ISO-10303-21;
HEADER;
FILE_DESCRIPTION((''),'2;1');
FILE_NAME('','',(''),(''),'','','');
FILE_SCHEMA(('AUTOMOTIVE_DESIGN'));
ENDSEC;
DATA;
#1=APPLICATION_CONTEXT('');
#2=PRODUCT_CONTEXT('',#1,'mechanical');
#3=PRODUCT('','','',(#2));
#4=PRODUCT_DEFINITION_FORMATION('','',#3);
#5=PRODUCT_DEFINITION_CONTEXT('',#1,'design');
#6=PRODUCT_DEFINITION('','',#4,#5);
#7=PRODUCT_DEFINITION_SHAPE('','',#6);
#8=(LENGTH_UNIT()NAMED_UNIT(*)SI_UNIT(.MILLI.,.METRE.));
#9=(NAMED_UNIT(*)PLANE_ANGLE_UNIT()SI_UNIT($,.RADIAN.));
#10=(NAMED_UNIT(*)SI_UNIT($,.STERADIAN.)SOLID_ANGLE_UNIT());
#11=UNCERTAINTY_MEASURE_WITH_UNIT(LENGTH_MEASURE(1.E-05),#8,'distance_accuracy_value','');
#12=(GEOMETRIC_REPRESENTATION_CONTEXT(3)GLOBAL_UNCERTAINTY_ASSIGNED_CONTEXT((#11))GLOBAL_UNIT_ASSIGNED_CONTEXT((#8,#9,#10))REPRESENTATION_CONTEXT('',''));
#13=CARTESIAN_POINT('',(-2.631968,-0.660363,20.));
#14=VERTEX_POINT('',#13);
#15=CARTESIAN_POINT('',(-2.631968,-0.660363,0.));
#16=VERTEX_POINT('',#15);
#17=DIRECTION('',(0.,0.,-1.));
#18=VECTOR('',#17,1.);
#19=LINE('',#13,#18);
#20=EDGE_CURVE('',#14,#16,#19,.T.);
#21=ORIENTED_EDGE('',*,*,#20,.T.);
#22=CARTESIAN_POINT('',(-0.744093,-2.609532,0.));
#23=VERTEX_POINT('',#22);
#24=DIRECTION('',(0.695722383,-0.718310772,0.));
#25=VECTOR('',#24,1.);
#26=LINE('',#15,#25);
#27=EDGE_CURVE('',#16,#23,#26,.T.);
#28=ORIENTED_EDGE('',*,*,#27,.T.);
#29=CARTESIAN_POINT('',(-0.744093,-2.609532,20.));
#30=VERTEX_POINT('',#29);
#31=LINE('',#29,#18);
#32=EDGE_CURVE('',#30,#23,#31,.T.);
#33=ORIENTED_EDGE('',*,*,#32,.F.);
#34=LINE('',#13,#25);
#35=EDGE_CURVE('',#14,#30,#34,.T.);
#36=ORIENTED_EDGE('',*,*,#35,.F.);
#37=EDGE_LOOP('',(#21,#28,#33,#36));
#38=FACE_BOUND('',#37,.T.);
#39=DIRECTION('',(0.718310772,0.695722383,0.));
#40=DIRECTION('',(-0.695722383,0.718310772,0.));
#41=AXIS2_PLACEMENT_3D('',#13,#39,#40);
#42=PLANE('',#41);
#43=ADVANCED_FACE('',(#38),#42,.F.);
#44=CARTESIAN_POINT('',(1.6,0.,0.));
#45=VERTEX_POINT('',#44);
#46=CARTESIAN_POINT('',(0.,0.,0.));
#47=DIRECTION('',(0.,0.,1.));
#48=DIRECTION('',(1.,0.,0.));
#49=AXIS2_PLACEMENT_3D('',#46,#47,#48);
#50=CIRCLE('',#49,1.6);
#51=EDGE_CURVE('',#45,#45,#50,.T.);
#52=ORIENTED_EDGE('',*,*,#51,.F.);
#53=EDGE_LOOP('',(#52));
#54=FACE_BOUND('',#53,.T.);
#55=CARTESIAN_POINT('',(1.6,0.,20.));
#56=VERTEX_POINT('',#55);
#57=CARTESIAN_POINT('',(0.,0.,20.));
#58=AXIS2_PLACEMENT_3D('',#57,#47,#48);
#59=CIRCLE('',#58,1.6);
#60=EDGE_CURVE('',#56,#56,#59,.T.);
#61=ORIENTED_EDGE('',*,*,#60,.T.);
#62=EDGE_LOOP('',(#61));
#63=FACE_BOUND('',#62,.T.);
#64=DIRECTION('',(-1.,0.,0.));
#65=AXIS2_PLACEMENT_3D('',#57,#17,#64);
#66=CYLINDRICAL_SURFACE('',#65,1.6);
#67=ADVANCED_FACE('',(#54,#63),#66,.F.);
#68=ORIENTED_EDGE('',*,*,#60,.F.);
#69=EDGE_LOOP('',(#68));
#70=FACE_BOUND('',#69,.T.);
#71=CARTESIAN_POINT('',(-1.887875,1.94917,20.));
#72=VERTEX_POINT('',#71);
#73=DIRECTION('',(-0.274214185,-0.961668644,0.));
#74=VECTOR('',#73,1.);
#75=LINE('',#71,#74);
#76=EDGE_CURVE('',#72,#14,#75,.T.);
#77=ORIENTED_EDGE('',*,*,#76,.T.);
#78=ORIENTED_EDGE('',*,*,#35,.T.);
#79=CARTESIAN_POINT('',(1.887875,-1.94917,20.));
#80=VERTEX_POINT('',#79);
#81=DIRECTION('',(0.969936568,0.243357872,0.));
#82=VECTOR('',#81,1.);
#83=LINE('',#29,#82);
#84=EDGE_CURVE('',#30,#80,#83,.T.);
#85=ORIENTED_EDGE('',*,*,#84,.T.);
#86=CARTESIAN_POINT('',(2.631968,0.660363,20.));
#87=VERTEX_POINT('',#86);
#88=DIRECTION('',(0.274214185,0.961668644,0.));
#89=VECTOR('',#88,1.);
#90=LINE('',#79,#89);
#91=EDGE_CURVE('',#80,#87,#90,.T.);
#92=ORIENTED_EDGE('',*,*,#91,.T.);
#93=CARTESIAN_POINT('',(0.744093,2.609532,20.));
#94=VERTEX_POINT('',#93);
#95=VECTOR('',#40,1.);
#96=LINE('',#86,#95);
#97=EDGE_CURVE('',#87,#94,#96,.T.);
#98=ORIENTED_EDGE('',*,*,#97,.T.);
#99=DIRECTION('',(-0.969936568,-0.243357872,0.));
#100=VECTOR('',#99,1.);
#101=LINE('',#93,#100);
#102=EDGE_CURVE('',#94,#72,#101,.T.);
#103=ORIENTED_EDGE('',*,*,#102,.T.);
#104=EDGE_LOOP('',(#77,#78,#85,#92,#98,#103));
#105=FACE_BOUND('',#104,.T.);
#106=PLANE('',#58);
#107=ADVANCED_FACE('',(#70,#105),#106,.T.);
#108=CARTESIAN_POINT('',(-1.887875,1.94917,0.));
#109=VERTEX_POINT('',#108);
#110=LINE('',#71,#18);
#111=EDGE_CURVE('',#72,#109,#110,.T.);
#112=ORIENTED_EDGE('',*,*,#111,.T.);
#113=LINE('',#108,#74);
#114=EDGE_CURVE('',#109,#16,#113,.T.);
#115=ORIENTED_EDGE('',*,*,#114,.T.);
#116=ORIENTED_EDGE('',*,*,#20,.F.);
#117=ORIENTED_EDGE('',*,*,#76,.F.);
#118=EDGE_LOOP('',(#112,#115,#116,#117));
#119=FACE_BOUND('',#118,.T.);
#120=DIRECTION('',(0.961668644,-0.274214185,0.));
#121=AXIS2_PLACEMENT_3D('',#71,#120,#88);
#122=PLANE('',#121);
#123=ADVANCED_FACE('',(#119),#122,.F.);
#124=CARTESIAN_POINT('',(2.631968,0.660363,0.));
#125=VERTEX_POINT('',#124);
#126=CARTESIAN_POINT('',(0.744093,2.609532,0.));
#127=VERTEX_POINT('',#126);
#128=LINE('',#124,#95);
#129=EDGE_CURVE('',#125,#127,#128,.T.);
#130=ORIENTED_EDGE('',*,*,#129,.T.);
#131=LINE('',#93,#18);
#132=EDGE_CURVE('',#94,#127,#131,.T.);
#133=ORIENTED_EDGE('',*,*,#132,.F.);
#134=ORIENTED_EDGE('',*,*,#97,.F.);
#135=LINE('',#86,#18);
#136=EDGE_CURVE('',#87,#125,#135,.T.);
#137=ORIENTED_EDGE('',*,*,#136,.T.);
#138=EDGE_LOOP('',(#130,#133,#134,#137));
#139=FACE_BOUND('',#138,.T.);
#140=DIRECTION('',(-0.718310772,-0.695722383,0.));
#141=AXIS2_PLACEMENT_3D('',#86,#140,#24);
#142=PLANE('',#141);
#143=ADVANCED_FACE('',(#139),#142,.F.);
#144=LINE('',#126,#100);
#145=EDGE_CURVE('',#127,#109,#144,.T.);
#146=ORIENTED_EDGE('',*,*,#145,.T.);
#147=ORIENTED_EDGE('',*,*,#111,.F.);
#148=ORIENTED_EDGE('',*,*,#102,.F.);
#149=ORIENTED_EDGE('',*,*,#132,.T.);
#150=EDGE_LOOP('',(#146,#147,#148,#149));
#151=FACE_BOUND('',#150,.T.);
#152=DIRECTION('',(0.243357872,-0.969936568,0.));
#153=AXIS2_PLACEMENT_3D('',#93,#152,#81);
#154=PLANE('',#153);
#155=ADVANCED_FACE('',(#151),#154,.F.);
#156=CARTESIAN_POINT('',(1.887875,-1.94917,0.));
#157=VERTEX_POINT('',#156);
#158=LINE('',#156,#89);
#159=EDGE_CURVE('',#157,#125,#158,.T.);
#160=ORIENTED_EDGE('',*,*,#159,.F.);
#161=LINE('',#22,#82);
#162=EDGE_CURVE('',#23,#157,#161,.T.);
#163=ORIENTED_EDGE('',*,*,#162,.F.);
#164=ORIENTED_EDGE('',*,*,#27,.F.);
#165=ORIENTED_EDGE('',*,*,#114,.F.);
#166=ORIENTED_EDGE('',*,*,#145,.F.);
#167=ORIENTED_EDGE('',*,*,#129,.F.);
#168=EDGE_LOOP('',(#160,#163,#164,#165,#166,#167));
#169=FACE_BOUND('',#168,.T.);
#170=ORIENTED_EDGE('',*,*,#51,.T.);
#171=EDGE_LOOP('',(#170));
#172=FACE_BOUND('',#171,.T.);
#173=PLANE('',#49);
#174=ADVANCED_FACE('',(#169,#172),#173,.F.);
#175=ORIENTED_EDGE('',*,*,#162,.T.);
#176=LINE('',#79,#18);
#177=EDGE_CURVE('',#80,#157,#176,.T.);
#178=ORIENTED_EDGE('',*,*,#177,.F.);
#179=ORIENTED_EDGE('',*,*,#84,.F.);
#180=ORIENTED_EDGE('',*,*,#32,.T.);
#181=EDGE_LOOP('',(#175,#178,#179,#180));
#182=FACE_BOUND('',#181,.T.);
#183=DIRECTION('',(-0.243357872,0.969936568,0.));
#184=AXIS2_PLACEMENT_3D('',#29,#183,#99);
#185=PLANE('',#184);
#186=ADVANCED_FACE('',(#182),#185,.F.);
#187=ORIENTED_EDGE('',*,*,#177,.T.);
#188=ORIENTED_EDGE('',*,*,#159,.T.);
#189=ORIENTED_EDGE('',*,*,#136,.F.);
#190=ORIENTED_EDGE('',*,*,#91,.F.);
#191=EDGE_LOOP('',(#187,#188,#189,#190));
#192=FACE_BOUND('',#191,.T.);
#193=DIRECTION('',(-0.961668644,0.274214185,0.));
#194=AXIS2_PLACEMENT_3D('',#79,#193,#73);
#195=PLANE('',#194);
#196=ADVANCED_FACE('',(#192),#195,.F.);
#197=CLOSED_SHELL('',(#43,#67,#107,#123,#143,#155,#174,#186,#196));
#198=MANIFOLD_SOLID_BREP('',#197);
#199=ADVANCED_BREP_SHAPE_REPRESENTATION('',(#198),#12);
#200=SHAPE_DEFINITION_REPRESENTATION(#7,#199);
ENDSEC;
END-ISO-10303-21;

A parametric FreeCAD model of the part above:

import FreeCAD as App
import Part
import Sketcher

V = App.Vector
Q = App.Units.Quantity


def add_polygon(sketch, points):
    """Adds a closed chain of lines whose ends are joined by coincident constraints."""
    first, n = sketch.GeometryCount, len(points)
    for a, b in zip(points, points[1:] + points[:1]):
        sketch.addGeometry(Part.LineSegment(App.Vector(*a, 0), App.Vector(*b, 0)), False)
    for i in range(n):
        sketch.addConstraint(Sketcher.Constraint("Coincident", first + i, 2, first + (i + 1) % n, 1))

doc = App.newDocument("Part")
params = doc.addObject("Spreadsheet::Sheet", "Params")
for row, (alias, value) in enumerate([
    ("sketch1_diameter", "3.2 mm"),
    ("pad1_length", "20 mm"),
], start=1):
    params.set(f"A{row}", alias)
    params.set(f"B{row}", "=" + value)
    params.setAlias(f"B{row}", alias)

body = doc.addObject("PartDesign::Body", "Body")

sketch1 = body.newObject("Sketcher::SketchObject", "Sketch")
sketch1.AttachmentSupport = (doc.getObject("XY_Plane"), [""])
sketch1.MapMode = "FlatFace"
add_polygon(sketch1, [(1.9, -1.9), (2.6, 0.7), (0.7, 2.6), (-1.9, 1.9), (-2.6, -0.7), (-0.7, -2.6)])
sketch1.addGeometry(Part.Circle(V(0, 0, 0), V(0, 0, 1), 1.6), False)
sketch1.addConstraint([
    Sketcher.Constraint("Coincident", 6, 3, -1, 1),
    Sketcher.Constraint("Symmetric", 0, 2, 3, 2, -1, 1),
    Sketcher.Constraint("Symmetric", 1, 2, 4, 2, -1, 1),
    Sketcher.Constraint("Symmetric", 2, 2, 5, 2, -1, 1),
    Sketcher.Constraint("Equal", 0, 1),
    Sketcher.Constraint("Equal", 1, 2),
    Sketcher.Constraint("Diameter", 6, Q("3.2 mm")),
    Sketcher.Constraint("DistanceY", 4, 2, 2, 2, Q("4.558702 mm")),
    Sketcher.Constraint("DistanceY", -1, 1, 2, 2, Q("1.94917 mm")),
    Sketcher.Constraint("DistanceY", 0, 2, 1, 2, Q("1.94917 mm")),
    Sketcher.Constraint("DistanceX", 3, 2, 1, 2, Q("3.376061 mm")),
])
sketch1.setExpression("Constraints[12]", "Params.sketch1_diameter")
pad1 = body.newObject("PartDesign::Pad", "Pad")
pad1.Profile = sketch1
pad1.setExpression("Length", "Params.pad1_length")

doc.recompute()
